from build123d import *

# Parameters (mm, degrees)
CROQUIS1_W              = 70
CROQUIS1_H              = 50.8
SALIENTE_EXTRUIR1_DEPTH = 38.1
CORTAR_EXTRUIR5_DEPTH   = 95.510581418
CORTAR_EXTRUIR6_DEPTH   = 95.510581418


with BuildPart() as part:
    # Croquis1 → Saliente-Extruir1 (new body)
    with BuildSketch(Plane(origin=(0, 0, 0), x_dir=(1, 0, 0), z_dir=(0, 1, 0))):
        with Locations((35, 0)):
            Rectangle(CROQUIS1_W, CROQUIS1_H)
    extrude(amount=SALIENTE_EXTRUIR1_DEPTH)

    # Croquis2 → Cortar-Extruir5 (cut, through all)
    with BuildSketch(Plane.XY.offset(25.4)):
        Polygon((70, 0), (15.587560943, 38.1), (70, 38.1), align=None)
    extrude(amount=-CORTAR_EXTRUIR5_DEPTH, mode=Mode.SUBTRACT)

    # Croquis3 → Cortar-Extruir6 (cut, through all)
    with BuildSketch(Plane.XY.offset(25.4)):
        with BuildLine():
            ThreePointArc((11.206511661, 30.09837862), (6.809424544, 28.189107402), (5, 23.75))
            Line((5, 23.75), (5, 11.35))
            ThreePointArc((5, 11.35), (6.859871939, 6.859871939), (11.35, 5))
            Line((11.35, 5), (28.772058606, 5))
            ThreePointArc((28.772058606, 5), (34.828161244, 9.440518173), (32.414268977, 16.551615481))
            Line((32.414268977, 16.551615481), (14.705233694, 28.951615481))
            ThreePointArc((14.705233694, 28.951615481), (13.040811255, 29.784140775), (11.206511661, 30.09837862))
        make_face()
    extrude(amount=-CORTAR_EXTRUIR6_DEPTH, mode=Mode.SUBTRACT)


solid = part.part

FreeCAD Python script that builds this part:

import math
import FreeCAD as App
import Part
import Sketcher
from FreeCAD import Vector
Q = App.Units.Quantity

doc = App.newDocument("Part")
params = doc.addObject("Spreadsheet::Sheet", "Params")
for row, (alias, value) in enumerate([
    ("sketch1_height", "2 in"),
    ("pad1_length", "1.5 in"),
    ("sketch2_height", "1.5 in"),
    ("sketch3_radius", "0.25 in"),
], start=1):
    params.set(f"A{row}", alias)
    params.set(f"B{row}", "=" + value)
    params.setAlias(f"B{row}", alias)

body = doc.addObject("PartDesign::Body", "Body")

# Sketch on XZ plane
sketch1 = body.newObject("Sketcher::SketchObject", "Sketch")
sketch1.AttachmentSupport = (doc.getObject("XZ_Plane"), [""])
sketch1.MapMode = "FlatFace"
sketch1.addGeometry([
    Part.LineSegment(Vector(0, -25, 0), Vector(0, 25, 0)),
    Part.LineSegment(Vector(0, 25, 0), Vector(70, 25, 0)),
    Part.LineSegment(Vector(70, 25, 0), Vector(70, -25, 0)),
    Part.LineSegment(Vector(70, -25, 0), Vector(0, -25, 0)),
], False)
sketch1.addConstraint([
    Sketcher.Constraint("Coincident", 0, 2, 1, 1),
    Sketcher.Constraint("Coincident", 1, 2, 2, 1),
    Sketcher.Constraint("Coincident", 2, 2, 3, 1),
    Sketcher.Constraint("Coincident", 3, 2, 0, 1),
    Sketcher.Constraint("Vertical", 0),
    Sketcher.Constraint("Horizontal", 1),
    Sketcher.Constraint("Vertical", 2),
    Sketcher.Constraint("Horizontal", 3),
    Sketcher.Constraint("Symmetric", 0, 2, 3, 2, -1, 1),
    Sketcher.Constraint("DistanceY", 0, 1, 0, 2, Q("2 in")),
    Sketcher.Constraint("DistanceX", 1, 1, 1, 2, 70.0),
])
sketch1.setExpression("Constraints[9]", "Params.sketch1_height")
pad1 = body.newObject("PartDesign::Pad", "Pad")
pad1.Profile = sketch1
pad1.setExpression("Length", "Params.pad1_length")
pad1.Reversed = True

# Sketch on XY plane
sketch2 = body.newObject("Sketcher::SketchObject", "Sketch001")
sketch2.AttachmentSupport = (doc.getObject("XY_Plane"), [""])
sketch2.MapMode = "FlatFace"
sketch2.AttachmentOffset = App.Placement(Vector(0, 0, 1 * 25.4), App.Rotation())
sketch2.addGeometry([
    Part.LineSegment(Vector(16, 38, 0), Vector(70, 0, 0)),
    Part.LineSegment(Vector(70, 0, 0), Vector(70, 38, 0)),
    Part.LineSegment(Vector(70, 38, 0), Vector(16, 38, 0)),
], False)
sketch2.addConstraint([
    Sketcher.Constraint("Coincident", 0, 2, 1, 1),
    Sketcher.Constraint("Coincident", 1, 2, 2, 1),
    Sketcher.Constraint("Coincident", 2, 2, 0, 1),
    Sketcher.Constraint("Vertical", 1),
    Sketcher.Constraint("Horizontal", 2),
    Sketcher.Constraint("PointOnObject", 0, 2, -1),
    Sketcher.Constraint("DistanceY", 1, 1, 1, 2, Q("1.5 in")),
    Sketcher.Constraint("Angle", 0, Q("-35 deg")),
    Sketcher.Constraint("DistanceX", -1, 1, 0, 2, 70.0),
])
sketch2.setExpression("Constraints[6]", "Params.sketch2_height")
pocket1 = body.newObject("PartDesign::Pocket", "Pocket")
pocket1.Profile = sketch2
pocket1.Type = "ThroughAll"

# Sketch on XY plane
sketch3 = body.newObject("Sketcher::SketchObject", "Sketch002")
sketch3.AttachmentSupport = (doc.getObject("XY_Plane"), [""])
sketch3.MapMode = "FlatFace"
sketch3.AttachmentOffset = App.Placement(Vector(0, 0, 1 * 25.4), App.Rotation())
sketch3.addGeometry([
    Part.ArcOfCircle(Part.Circle(Vector(11.4, 23.7, 0), Vector(0, 0, 1), 6.4), math.radians(91), math.radians(180)),  # 0
    Part.LineSegment(Vector(5, 23.8, 0), Vector(5, 11.3, 0)),  # 1
    Part.ArcOfCircle(Part.Circle(Vector(11.3, 11.3, 0), Vector(0, 0, 1), 6.3), math.radians(180), math.radians(270)),  # 2
    Part.LineSegment(Vector(11.3, 5, 0), Vector(28.8, 5, 0)),  # 3
    Part.ArcOfCircle(Part.Circle(Vector(28.8, 11.3, 0), Vector(0, 0, 1), 6.3), math.radians(-90), math.radians(55)),  # 4
    Part.LineSegment(Vector(32.4, 16.6, 0), Vector(14.7, 29, 0)),  # 5
    Part.ArcOfCircle(Part.Circle(Vector(11.1, 23.7, 0), Vector(0, 0, 1), 6.4), math.radians(55), math.radians(89)),  # 6
], False)
sketch3.addConstraint([
    Sketcher.Constraint("Tangent", 0, 2, 1, 1),
    Sketcher.Constraint("Tangent", 1, 2, 2, 1),
    Sketcher.Constraint("Tangent", 2, 2, 3, 1),
    Sketcher.Constraint("Tangent", 3, 2, 4, 1),
    Sketcher.Constraint("Tangent", 4, 2, 5, 1),
    Sketcher.Constraint("Tangent", 5, 2, 6, 1),
    Sketcher.Constraint("Coincident", 6, 2, 0, 1),
    Sketcher.Constraint("Vertical", 1),
    Sketcher.Constraint("Horizontal", 3),
    Sketcher.Constraint("Equal", 0, 2),
    Sketcher.Constraint("Equal", 2, 4),
    Sketcher.Constraint("Equal", 4, 6),
    Sketcher.Constraint("Horizontal", 0, 3, 6, 3),
    Sketcher.Constraint("Radius", 0, Q("0.25 in")),
    Sketcher.Constraint("Angle", 5, Q("145 deg")),
    Sketcher.Constraint("DistanceY", 1, 2, 1, 1, 12.4),
    Sketcher.Constraint("DistanceX", 3, 1, 3, 2, 17.422059),
    Sketcher.Constraint("DistanceX", -1, 1, 0, 3, 11.35),
    Sketcher.Constraint("DistanceY", -1, 1, 0, 3, 23.75),
])
sketch3.setExpression("Constraints[13]", "Params.sketch3_radius")
pocket2 = body.newObject("PartDesign::Pocket", "Pocket001")
pocket2.Profile = sketch3
pocket2.Type = "ThroughAll"

doc.recompute()
